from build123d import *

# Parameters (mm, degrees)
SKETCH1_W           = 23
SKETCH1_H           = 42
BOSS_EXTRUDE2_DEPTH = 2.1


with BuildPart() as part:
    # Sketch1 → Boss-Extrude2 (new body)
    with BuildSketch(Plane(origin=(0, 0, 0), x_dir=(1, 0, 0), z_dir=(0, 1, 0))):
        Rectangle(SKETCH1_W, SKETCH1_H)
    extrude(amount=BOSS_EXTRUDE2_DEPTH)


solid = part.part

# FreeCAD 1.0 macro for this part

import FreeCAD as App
import Part
import Sketcher

V = App.Vector
Q = App.Units.Quantity

doc = App.newDocument("Part")
body = doc.addObject("PartDesign::Body", "Body")

# Sketch on XZ plane
sketch1 = doc.addObject("Sketcher::SketchObject", "Sketch")
body.addObject(sketch1)
sketch1.AttachmentSupport = (doc.XZ_Plane, [""])
sketch1.MapMode = "FlatFace"
sketch1.addGeometry(Part.LineSegment(V(-12, -21, 0), V(-12, 21, 0)), False)
sketch1.addGeometry(Part.LineSegment(V(-12, 21, 0), V(12, 21, 0)), False)
sketch1.addGeometry(Part.LineSegment(V(12, 21, 0), V(12, -21, 0)), False)
sketch1.addGeometry(Part.LineSegment(V(12, -21, 0), V(-12, -21, 0)), False)
sketch1.addConstraint(Sketcher.Constraint("Coincident", 0, 2, 1, 1))
sketch1.addConstraint(Sketcher.Constraint("Coincident", 1, 2, 2, 1))
sketch1.addConstraint(Sketcher.Constraint("Coincident", 2, 2, 3, 1))
sketch1.addConstraint(Sketcher.Constraint("Coincident", 3, 2, 0, 1))
sketch1.addConstraint(Sketcher.Constraint("Vertical", 0))
sketch1.addConstraint(Sketcher.Constraint("Horizontal", 1))
sketch1.addConstraint(Sketcher.Constraint("Vertical", 2))
sketch1.addConstraint(Sketcher.Constraint("Horizontal", 3))
sketch1.addConstraint(Sketcher.Constraint("Symmetric", 0, 2, 2, 2, -1, 1))
sketch1.addConstraint(Sketcher.Constraint("DistanceX", 1, 1, 1, 2, Q("23 mm")))
sketch1.addConstraint(Sketcher.Constraint("DistanceY", 0, 1, 0, 2, Q("42 mm")))
pad1 = doc.addObject("PartDesign::Pad", "Pad")
body.addObject(pad1)
pad1.Profile = sketch1
pad1.Length = 2.1
pad1.Reversed = True

doc.recompute()
